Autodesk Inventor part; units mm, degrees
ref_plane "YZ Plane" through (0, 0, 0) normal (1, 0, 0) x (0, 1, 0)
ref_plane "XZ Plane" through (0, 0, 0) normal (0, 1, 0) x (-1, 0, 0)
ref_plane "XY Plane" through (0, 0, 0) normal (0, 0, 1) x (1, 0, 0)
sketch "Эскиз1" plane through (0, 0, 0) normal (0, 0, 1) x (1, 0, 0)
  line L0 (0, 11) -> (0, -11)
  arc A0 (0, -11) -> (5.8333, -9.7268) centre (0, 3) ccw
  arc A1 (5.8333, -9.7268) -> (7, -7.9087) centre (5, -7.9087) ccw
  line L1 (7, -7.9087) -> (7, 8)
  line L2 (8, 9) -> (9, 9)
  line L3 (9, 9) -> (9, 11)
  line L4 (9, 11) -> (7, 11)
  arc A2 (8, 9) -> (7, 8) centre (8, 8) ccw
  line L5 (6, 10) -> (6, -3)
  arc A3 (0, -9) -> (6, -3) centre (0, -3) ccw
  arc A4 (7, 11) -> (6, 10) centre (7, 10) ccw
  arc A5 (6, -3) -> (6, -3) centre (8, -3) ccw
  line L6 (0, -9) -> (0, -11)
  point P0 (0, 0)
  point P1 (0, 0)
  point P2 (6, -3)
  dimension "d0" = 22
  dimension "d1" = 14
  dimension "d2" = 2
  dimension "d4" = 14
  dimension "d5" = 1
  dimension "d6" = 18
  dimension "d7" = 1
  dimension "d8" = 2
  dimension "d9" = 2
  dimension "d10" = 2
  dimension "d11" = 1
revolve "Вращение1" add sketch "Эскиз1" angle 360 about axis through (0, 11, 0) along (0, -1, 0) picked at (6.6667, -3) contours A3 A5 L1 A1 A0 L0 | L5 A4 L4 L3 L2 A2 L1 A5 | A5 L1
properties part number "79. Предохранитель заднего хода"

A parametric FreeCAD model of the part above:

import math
import FreeCAD as App
import Part
import Sketcher

doc = App.newDocument("Part")
body = doc.addObject("PartDesign::Body", "Body")

sketch1 = doc.addObject("Sketcher::SketchObject", "Sketch")
body.addObject(sketch1)
sketch1.AttachmentSupport = (doc.XY_Plane, [""])
sketch1.MapMode = "FlatFace"
sketch1.addGeometry([
    Part.ArcOfCircle(Part.Circle(App.Vector(0, -3, 0), App.Vector(0, 0, 1), 6), math.radians(-90), math.radians(0)),
    Part.LineSegment(App.Vector(0, -9, 0), App.Vector(0, -11, 0)),
    Part.ArcOfCircle(Part.Circle(App.Vector(0, 3, 0), App.Vector(0, 0, 1), 14), math.radians(-90), math.radians(-65)),
    Part.ArcOfCircle(Part.Circle(App.Vector(5, -7.9, 0), App.Vector(0, 0, 1), 2), math.radians(-65), math.radians(0)),
    Part.LineSegment(App.Vector(7, -7.9, 0), App.Vector(7, 8, 0)),
    Part.ArcOfCircle(Part.Circle(App.Vector(8, 8, 0), App.Vector(0, 0, 1), 1), math.radians(90), math.radians(180)),
    Part.LineSegment(App.Vector(8, 9, 0), App.Vector(9, 9, 0)),
    Part.LineSegment(App.Vector(9, 9, 0), App.Vector(9, 11, 0)),
    Part.LineSegment(App.Vector(9, 11, 0), App.Vector(7, 11, 0)),
    Part.ArcOfCircle(Part.Circle(App.Vector(7, 10, 0), App.Vector(0, 0, 1), 1), math.radians(90), math.radians(180)),
    Part.LineSegment(App.Vector(6, 10, 0), App.Vector(6, -3, 0)),
], False)
sketch1.addConstraint([
    Sketcher.Constraint("Coincident", 0, 1, 1, 1),
    Sketcher.Constraint("Coincident", 1, 2, 2, 1),
    Sketcher.Constraint("Tangent", 2, 2, 3, 1),
    Sketcher.Constraint("Tangent", 3, 2, 4, 1),
    Sketcher.Constraint("Tangent", 4, 2, 5, 2),
    Sketcher.Constraint("Tangent", 5, 1, 6, 1),
    Sketcher.Constraint("Coincident", 6, 2, 7, 1),
    Sketcher.Constraint("Coincident", 7, 2, 8, 1),
    Sketcher.Constraint("Tangent", 8, 2, 9, 1),
    Sketcher.Constraint("Tangent", 9, 2, 10, 1),
    Sketcher.Constraint("Tangent", 10, 2, 0, 2),
    Sketcher.Constraint("Vertical", 1),
    Sketcher.Constraint("Vertical", 4),
    Sketcher.Constraint("Horizontal", 6),
    Sketcher.Constraint("Vertical", 7),
    Sketcher.Constraint("Horizontal", 8),
    Sketcher.Constraint("Vertical", 10),
    Sketcher.Constraint("Equal", 5, 9),
    Sketcher.Constraint("Symmetric", 0, 3, 2, 3, -1, 1),
    Sketcher.Constraint("PointOnObject", 0, 3, -2),
    Sketcher.Constraint("PointOnObject", 0, 1, -2),
    Sketcher.Constraint("Vertical", 9, 3, 3, 2),
    Sketcher.Constraint("Equal", 8, 1),
    Sketcher.Constraint("Equal", 1, 7),
    Sketcher.Constraint("Radius", 2, 14.0),
    Sketcher.Constraint("Radius", 3, 2.0),
    Sketcher.Constraint("Radius", 5, 1.0),
    Sketcher.Constraint("DistanceX", 6, 1, 6, 2, 1.0),
    Sketcher.Constraint("Radius", 0, 6.0),
    Sketcher.Constraint("DistanceY", 10, 2, 10, 1, 13.0),
])
revolution = doc.addObject("PartDesign::Revolution", "Revolution")
body.addObject(revolution)
revolution.Profile = sketch1
revolution.ReferenceAxis = (sketch1, ["V_Axis"])
revolution.Angle = 360

doc.recompute()
